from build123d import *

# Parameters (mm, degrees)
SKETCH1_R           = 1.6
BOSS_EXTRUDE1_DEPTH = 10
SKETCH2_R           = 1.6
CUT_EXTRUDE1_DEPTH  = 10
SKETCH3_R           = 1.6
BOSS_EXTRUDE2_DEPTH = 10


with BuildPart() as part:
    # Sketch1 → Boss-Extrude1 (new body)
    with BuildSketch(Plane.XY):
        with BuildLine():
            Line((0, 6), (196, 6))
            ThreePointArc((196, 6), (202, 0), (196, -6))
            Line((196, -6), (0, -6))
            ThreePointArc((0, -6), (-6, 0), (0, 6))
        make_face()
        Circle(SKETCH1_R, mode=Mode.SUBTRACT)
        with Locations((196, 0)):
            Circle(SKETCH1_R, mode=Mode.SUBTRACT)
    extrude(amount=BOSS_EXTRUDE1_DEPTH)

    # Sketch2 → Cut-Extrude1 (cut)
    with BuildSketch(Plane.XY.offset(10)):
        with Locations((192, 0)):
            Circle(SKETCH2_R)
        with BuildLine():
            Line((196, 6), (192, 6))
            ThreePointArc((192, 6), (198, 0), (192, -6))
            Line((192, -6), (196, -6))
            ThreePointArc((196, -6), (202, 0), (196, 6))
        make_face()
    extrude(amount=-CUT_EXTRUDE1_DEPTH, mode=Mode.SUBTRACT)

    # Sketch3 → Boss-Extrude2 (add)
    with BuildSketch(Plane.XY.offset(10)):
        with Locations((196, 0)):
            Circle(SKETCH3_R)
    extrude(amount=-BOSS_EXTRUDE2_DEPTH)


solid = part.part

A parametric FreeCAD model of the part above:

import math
import FreeCAD as App
import Part
import Sketcher

V = App.Vector

doc = App.newDocument("Part")
params = doc.addObject("Spreadsheet::Sheet", "Params")
for row, (alias, value) in enumerate([
    ("sketch1_radius", "6 mm"),
    ("sketch1_diameter", "3.2 mm"),
    ("sketch1_width", "196 mm"),
    ("pad1_length", "10 mm"),
    ("sketch2_radius", "6 mm"),
    ("sketch2_diameter", "3.2 mm"),
    ("sketch2_width", "4 mm"),
    ("pocket1_length", "10 mm"),
    ("sketch3_diameter", "3.2 mm"),
    ("pad2_length", "10 mm"),
], start=1):
    params.set(f"A{row}", alias)
    params.set(f"B{row}", "=" + value)
    params.setAlias(f"B{row}", alias)

body = doc.addObject("PartDesign::Body", "Body")

# Sketch on XY plane
sketch1 = doc.addObject("Sketcher::SketchObject", "Sketch")
body.addObject(sketch1)
sketch1.AttachmentSupport = (doc.XY_Plane, [""])
sketch1.MapMode = "FlatFace"
sketch1.addGeometry([
    Part.LineSegment(V(196, 6, 0), V(0, 6, 0)),  # 0
    Part.ArcOfCircle(Part.Circle(V(0, 0, 0), V(0, 0, 1), 6), math.radians(90), math.radians(270)),  # 1
    Part.LineSegment(V(0, -6, 0), V(196, -6, 0)),  # 2
    Part.ArcOfCircle(Part.Circle(V(196, 0, 0), V(0, 0, 1), 6), math.radians(-90), math.radians(90)),  # 3
    Part.Circle(V(196, 0, 0), V(0, 0, 1), 1.6),  # 4
    Part.Circle(V(0, 0, 0), V(0, 0, 1), 1.6),  # 5
], False)
sketch1.addConstraint([
    Sketcher.Constraint("Tangent", 0, 2, 1, 1),
    Sketcher.Constraint("Tangent", 1, 2, 2, 1),
    Sketcher.Constraint("Tangent", 2, 2, 3, 1),
    Sketcher.Constraint("Tangent", 3, 2, 0, 1),
    Sketcher.Constraint("Horizontal", 0),
    Sketcher.Constraint("Horizontal", 2),
    Sketcher.Constraint("Coincident", 1, 3, -1, 1),
    Sketcher.Constraint("Coincident", 5, 3, -1, 1),
    Sketcher.Constraint("Coincident", 4, 3, 3, 3),
    Sketcher.Constraint("Equal", 4, 5),
    Sketcher.Constraint("Radius", 1, 6.0),
    Sketcher.Constraint("Diameter", 4, 3.2),
    Sketcher.Constraint("DistanceX", 0, 2, 0, 1, 196.0),
])
sketch1.setExpression("Constraints[10]", "Params.sketch1_radius")
sketch1.setExpression("Constraints[11]", "Params.sketch1_diameter")
sketch1.setExpression("Constraints[12]", "Params.sketch1_width")
pad1 = doc.addObject("PartDesign::Pad", "Pad")
body.addObject(pad1)
pad1.Profile = sketch1
pad1.setExpression("Length", "Params.pad1_length")

# Sketch on XY plane
sketch2 = doc.addObject("Sketcher::SketchObject", "Sketch001")
body.addObject(sketch2)
sketch2.AttachmentSupport = (doc.XY_Plane, [""])
sketch2.MapMode = "FlatFace"
sketch2.AttachmentOffset = App.Placement(V(0, 0, 10), App.Rotation())
sketch2.addGeometry([
    Part.Circle(V(192, 0, 0), V(0, 0, 1), 1.6),  # 0
    Part.LineSegment(V(196, 6, 0), V(192, 6, 0)),  # 1
    Part.ArcOfCircle(Part.Circle(V(192, 0, 0), V(0, 0, 1), 6), math.radians(-90), math.radians(90)),  # 2
    Part.LineSegment(V(192, -6, 0), V(196, -6, 0)),  # 3
    Part.ArcOfCircle(Part.Circle(V(196, 0, 0), V(0, 0, 1), 6), math.radians(-90), math.radians(90)),  # 4
], False)
sketch2.addConstraint([
    Sketcher.Constraint("Tangent", 1, 2, 2, 2),
    Sketcher.Constraint("Tangent", 2, 1, 3, 1),
    Sketcher.Constraint("Tangent", 3, 2, 4, 1),
    Sketcher.Constraint("Tangent", 4, 2, 1, 1),
    Sketcher.Constraint("Horizontal", 1),
    Sketcher.Constraint("Horizontal", 3),
    Sketcher.Constraint("Coincident", 2, 3, 0, 3),
    Sketcher.Constraint("PointOnObject", 0, 3, -1),
    Sketcher.Constraint("Radius", 2, 6.0),
    Sketcher.Constraint("Diameter", 0, 3.2),
    Sketcher.Constraint("DistanceX", 1, 2, 1, 1, 4.0),
    Sketcher.Constraint("DistanceX", -1, 1, 0, 3, 192.0),
])
sketch2.setExpression("Constraints[8]", "Params.sketch2_radius")
sketch2.setExpression("Constraints[9]", "Params.sketch2_diameter")
sketch2.setExpression("Constraints[10]", "Params.sketch2_width")
pocket1 = doc.addObject("PartDesign::Pocket", "Pocket")
body.addObject(pocket1)
pocket1.Profile = sketch2
pocket1.setExpression("Length", "Params.pocket1_length")

# Sketch on XY plane
sketch3 = doc.addObject("Sketcher::SketchObject", "Sketch002")
body.addObject(sketch3)
sketch3.AttachmentSupport = (doc.XY_Plane, [""])
sketch3.MapMode = "FlatFace"
sketch3.AttachmentOffset = App.Placement(V(0, 0, 10), App.Rotation())
sketch3.addGeometry(Part.Circle(V(196, 0, 0), V(0, 0, 1), 1.6), False)
sketch3.addConstraint([
    Sketcher.Constraint("PointOnObject", 0, 3, -1),
    Sketcher.Constraint("Diameter", 0, 3.2),
    Sketcher.Constraint("DistanceX", -1, 1, 0, 3, 196.0),
])
sketch3.setExpression("Constraints[1]", "Params.sketch3_diameter")
pad2 = doc.addObject("PartDesign::Pad", "Pad001")
body.addObject(pad2)
pad2.Profile = sketch3
pad2.setExpression("Length", "Params.pad2_length")
pad2.Reversed = True

doc.recompute()
